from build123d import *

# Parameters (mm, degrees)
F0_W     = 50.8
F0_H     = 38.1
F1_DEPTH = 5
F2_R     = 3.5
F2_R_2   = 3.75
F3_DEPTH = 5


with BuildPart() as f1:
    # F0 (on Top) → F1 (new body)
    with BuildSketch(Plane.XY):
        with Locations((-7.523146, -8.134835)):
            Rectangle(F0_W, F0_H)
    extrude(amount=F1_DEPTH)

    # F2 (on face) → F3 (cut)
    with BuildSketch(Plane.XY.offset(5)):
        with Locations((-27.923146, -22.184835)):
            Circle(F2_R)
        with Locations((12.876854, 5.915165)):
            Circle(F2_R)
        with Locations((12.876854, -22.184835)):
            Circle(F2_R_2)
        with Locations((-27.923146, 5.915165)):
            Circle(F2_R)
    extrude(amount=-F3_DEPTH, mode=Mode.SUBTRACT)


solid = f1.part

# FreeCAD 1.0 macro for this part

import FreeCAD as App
import Part
import Sketcher
Q = App.Units.Quantity


def add_polygon(sketch, points):
    """Adds a closed chain of lines whose ends are joined by coincident constraints."""
    first, n = sketch.GeometryCount, len(points)
    for a, b in zip(points, points[1:] + points[:1]):
        sketch.addGeometry(Part.LineSegment(App.Vector(*a, 0), App.Vector(*b, 0)), False)
    for i in range(n):
        sketch.addConstraint(Sketcher.Constraint("Coincident", first + i, 2, first + (i + 1) % n, 1))

doc = App.newDocument("Part")
body = doc.addObject("PartDesign::Body", "Body")

sketch1 = body.newObject("Sketcher::SketchObject", "Sketch")
sketch1.AttachmentSupport = (doc.getObject("XY_Plane"), [""])
sketch1.MapMode = "FlatFace"
add_polygon(sketch1, [(-32.923146, 10.915165), (-32.923146, -27.184835), (17.876854, -27.184835), (17.876854, 10.915165)])
sketch1.addConstraint([
    Sketcher.Constraint("Vertical", 0),
    Sketcher.Constraint("Horizontal", 1),
    Sketcher.Constraint("Vertical", 2),
    Sketcher.Constraint("Horizontal", 3),
    Sketcher.Constraint("DistanceX", 1, 1, 1, 2, Q("50.8 mm")),
    Sketcher.Constraint("DistanceY", 0, 2, 0, 1, Q("38.1 mm")),
    Sketcher.Constraint("DistanceX", 0, 2, -1, 1, Q("32.923146 mm")),
    Sketcher.Constraint("DistanceY", 0, 2, -1, 1, Q("27.184835 mm")),
])
pad1 = body.newObject("PartDesign::Pad", "Pad")
pad1.Profile = sketch1
pad1.Length = 5

sketch2 = body.newObject("Sketcher::SketchObject", "Sketch001")
sketch2.AttachmentSupport = (doc.getObject("XY_Plane"), [""])
sketch2.MapMode = "FlatFace"
sketch2.AttachmentOffset = App.Placement(App.Vector(0, 0, 5), App.Rotation())
sketch2.addGeometry([
    Part.Circle(App.Vector(-27.923146, -22.184835, 0), App.Vector(0, 0, 1), 3.5),
    Part.Circle(App.Vector(12.876854, 5.915165, 0), App.Vector(0, 0, 1), 3.5),
    Part.Circle(App.Vector(12.876854, -22.184835, 0), App.Vector(0, 0, 1), 3.75),
    Part.Circle(App.Vector(-27.923146, 5.915165, 0), App.Vector(0, 0, 1), 3.5),
], False)
sketch2.addConstraint([
    Sketcher.Constraint("Equal", 0, 1),
    Sketcher.Constraint("Equal", 1, 3),
    Sketcher.Constraint("Horizontal", 0, 3, 2, 3),
    Sketcher.Constraint("Horizontal", 1, 3, 3, 3),
    Sketcher.Constraint("Vertical", 1, 3, 2, 3),
    Sketcher.Constraint("Vertical", 0, 3, 3, 3),
    Sketcher.Constraint("Diameter", 0, Q("7 mm")),
    Sketcher.Constraint("Diameter", 2, Q("7.5 mm")),
    Sketcher.Constraint("DistanceX", 0, 3, 1, 3, Q("40.8 mm")),
    Sketcher.Constraint("DistanceY", 0, 3, 1, 3, Q("28.1 mm")),
    Sketcher.Constraint("DistanceX", 0, 3, -1, 1, Q("27.923146 mm")),
    Sketcher.Constraint("DistanceY", 0, 3, -1, 1, Q("22.184835 mm")),
])
pocket1 = body.newObject("PartDesign::Pocket", "Pocket")
pocket1.Profile = sketch2
pocket1.Length = 5

doc.recompute()
